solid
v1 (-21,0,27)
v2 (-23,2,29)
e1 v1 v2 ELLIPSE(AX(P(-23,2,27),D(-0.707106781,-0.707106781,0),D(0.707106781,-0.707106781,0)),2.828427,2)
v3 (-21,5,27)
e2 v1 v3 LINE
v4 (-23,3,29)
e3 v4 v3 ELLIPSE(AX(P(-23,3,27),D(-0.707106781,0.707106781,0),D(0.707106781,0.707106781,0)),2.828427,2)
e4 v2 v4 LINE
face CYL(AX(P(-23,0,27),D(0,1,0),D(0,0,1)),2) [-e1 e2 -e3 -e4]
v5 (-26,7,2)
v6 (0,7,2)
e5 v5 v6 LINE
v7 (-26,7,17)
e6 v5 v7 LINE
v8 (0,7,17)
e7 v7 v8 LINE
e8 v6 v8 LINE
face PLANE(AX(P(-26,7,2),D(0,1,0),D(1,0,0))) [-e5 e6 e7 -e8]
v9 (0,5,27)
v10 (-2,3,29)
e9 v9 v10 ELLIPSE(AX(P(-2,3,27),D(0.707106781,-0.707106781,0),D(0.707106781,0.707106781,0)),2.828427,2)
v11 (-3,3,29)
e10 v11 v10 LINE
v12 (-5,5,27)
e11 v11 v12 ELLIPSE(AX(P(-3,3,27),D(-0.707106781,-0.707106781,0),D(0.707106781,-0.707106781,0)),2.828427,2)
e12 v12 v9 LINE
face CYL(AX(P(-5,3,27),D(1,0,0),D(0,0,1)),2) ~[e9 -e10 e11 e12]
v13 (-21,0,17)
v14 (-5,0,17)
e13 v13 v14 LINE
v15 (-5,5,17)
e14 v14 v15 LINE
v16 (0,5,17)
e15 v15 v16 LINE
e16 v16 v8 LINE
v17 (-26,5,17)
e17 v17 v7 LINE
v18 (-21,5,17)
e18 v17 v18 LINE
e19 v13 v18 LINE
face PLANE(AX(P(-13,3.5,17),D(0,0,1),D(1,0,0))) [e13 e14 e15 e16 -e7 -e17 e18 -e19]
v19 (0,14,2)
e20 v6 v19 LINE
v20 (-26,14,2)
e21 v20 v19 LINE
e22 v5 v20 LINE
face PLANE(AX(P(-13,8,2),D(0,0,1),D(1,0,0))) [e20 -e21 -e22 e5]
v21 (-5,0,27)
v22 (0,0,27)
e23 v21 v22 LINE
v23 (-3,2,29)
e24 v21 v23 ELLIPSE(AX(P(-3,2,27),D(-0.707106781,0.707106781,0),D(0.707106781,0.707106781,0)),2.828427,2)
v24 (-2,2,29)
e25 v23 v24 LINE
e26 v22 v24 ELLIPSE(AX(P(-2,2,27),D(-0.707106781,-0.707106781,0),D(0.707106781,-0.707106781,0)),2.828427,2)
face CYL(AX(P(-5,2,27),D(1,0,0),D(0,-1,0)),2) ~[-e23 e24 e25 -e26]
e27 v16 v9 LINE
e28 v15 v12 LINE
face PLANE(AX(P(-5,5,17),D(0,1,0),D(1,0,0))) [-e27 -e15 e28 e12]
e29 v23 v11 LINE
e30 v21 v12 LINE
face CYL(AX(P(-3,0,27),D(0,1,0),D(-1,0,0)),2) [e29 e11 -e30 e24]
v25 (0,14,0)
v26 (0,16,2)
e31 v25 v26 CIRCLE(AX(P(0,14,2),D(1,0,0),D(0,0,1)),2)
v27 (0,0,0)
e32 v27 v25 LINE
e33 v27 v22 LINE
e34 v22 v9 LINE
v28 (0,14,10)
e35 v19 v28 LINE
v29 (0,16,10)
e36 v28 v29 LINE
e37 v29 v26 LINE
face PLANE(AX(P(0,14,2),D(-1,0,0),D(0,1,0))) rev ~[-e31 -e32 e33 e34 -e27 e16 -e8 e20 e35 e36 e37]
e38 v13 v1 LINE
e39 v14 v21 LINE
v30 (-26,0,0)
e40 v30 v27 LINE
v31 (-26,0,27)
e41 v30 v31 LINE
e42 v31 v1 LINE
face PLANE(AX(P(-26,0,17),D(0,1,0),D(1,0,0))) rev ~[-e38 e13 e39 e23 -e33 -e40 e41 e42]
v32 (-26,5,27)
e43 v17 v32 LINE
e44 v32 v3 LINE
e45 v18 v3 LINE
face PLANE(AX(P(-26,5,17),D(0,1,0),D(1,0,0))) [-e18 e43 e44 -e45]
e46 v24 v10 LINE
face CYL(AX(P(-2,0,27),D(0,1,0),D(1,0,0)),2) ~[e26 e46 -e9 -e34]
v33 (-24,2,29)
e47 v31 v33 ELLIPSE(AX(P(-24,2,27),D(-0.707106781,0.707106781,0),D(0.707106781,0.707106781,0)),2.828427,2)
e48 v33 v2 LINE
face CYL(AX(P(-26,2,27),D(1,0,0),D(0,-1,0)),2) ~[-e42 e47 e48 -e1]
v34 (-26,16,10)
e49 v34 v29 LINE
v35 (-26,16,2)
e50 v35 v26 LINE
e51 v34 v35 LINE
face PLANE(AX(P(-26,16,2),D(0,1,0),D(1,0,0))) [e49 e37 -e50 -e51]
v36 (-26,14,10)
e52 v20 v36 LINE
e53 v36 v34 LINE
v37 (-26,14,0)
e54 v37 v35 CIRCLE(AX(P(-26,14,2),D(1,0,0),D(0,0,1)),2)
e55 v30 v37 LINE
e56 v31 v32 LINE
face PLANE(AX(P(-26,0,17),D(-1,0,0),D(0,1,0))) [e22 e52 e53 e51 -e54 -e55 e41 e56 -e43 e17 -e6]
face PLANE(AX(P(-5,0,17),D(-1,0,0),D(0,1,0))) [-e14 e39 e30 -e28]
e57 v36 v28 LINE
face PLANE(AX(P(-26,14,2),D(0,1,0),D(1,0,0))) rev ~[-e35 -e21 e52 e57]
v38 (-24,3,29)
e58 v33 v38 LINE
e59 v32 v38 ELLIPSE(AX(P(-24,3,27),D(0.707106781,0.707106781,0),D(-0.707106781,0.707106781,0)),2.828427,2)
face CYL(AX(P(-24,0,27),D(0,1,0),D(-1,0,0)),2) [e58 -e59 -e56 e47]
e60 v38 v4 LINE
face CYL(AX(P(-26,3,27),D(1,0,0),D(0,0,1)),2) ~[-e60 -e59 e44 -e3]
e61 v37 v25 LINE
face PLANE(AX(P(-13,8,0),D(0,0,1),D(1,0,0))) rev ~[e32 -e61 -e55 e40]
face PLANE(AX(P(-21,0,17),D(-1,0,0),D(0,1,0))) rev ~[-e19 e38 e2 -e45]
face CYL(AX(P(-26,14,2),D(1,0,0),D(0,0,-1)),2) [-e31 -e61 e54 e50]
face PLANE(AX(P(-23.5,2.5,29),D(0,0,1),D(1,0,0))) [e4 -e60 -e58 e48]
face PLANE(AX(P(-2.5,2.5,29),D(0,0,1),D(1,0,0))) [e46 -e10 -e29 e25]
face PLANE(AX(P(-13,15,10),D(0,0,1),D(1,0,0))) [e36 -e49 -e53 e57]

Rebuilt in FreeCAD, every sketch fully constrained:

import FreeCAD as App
import Part
import Sketcher

V = App.Vector
Q = App.Units.Quantity


def edges_at(feature, points):
    """Names of the edges that pass closest to the given points."""
    edges = feature.Shape.Edges
    near = lambda p: min(range(len(edges)), key=lambda i: edges[i].distToShape(Part.Vertex(*p))[0])
    return sorted({f"Edge{near(p) + 1}" for p in points})

doc = App.newDocument("Part")
params = doc.addObject("Spreadsheet::Sheet", "Params")
for row, (alias, value) in enumerate([
    ("sketch1_width", "26 mm"),
    ("sketch1_height", "16 mm"),
    ("pad1_length", "2 mm"),
    ("sketch2_width", "26 mm"),
    ("sketch2_height", "7 mm"),
    ("pad2_length", "15 mm"),
    ("sketch3_width", "26 mm"),
    ("sketch3_height", "2 mm"),
    ("pad3_length", "8 mm"),
    ("sketch4_width", "5 mm"),
    ("pad4_length", "12 mm"),
    ("fillet_radius", "2 mm"),
    ("fillet2_radius", "2 mm"),
], start=1):
    params.set(f"A{row}", alias)
    params.set(f"B{row}", "=" + value)
    params.setAlias(f"B{row}", alias)

body = doc.addObject("PartDesign::Body", "Body")

sketch1 = body.newObject("Sketcher::SketchObject", "Sketch")
sketch1.AttachmentSupport = (doc.getObject("XY_Plane"), [""])
sketch1.MapMode = "FlatFace"
sketch1.addGeometry([
    Part.LineSegment(V(-26, 16, 0), V(-26, 0, 0)),
    Part.LineSegment(V(-26, 0, 0), V(0, 0, 0)),
    Part.LineSegment(V(0, 0, 0), V(0, 16, 0)),
    Part.LineSegment(V(0, 16, 0), V(-26, 16, 0)),
], False)
sketch1.addConstraint([
    Sketcher.Constraint("Coincident", 0, 2, 1, 1),
    Sketcher.Constraint("Coincident", 1, 2, 2, 1),
    Sketcher.Constraint("Coincident", 2, 2, 3, 1),
    Sketcher.Constraint("Coincident", 3, 2, 0, 1),
    Sketcher.Constraint("Vertical", 0),
    Sketcher.Constraint("Horizontal", 1),
    Sketcher.Constraint("Vertical", 2),
    Sketcher.Constraint("Horizontal", 3),
    Sketcher.Constraint("Coincident", 1, 2, -1, 1),
    Sketcher.Constraint("DistanceX", 1, 1, 1, 2, Q("26 mm")),
    Sketcher.Constraint("DistanceY", 0, 2, 0, 1, Q("16 mm")),
])
sketch1.setExpression("Constraints[9]", "Params.sketch1_width")
sketch1.setExpression("Constraints[10]", "Params.sketch1_height")
pad1 = body.newObject("PartDesign::Pad", "Pad")
pad1.Profile = sketch1
pad1.setExpression("Length", "Params.pad1_length")

sketch2 = body.newObject("Sketcher::SketchObject", "Sketch001")
sketch2.AttachmentSupport = (doc.getObject("XY_Plane"), [""])
sketch2.MapMode = "FlatFace"
sketch2.AttachmentOffset = App.Placement(V(0, 0, 2), App.Rotation())
sketch2.addGeometry([
    Part.LineSegment(V(-26, 7, 0), V(-26, 0, 0)),
    Part.LineSegment(V(-26, 0, 0), V(0, 0, 0)),
    Part.LineSegment(V(0, 0, 0), V(0, 7, 0)),
    Part.LineSegment(V(0, 7, 0), V(-26, 7, 0)),
], False)
sketch2.addConstraint([
    Sketcher.Constraint("Coincident", 0, 2, 1, 1),
    Sketcher.Constraint("Coincident", 1, 2, 2, 1),
    Sketcher.Constraint("Coincident", 2, 2, 3, 1),
    Sketcher.Constraint("Coincident", 3, 2, 0, 1),
    Sketcher.Constraint("Vertical", 0),
    Sketcher.Constraint("Horizontal", 1),
    Sketcher.Constraint("Vertical", 2),
    Sketcher.Constraint("Horizontal", 3),
    Sketcher.Constraint("Coincident", 1, 2, -1, 1),
    Sketcher.Constraint("DistanceX", 1, 1, 1, 2, Q("26 mm")),
    Sketcher.Constraint("DistanceY", 0, 2, 0, 1, Q("7 mm")),
])
sketch2.setExpression("Constraints[9]", "Params.sketch2_width")
sketch2.setExpression("Constraints[10]", "Params.sketch2_height")
pad2 = body.newObject("PartDesign::Pad", "Pad001")
pad2.Profile = sketch2
pad2.setExpression("Length", "Params.pad2_length")

sketch3 = body.newObject("Sketcher::SketchObject", "Sketch002")
sketch3.AttachmentSupport = (doc.getObject("XY_Plane"), [""])
sketch3.MapMode = "FlatFace"
sketch3.AttachmentOffset = App.Placement(V(0, 0, 2), App.Rotation())
sketch3.addGeometry([
    Part.LineSegment(V(-26, 16, 0), V(-26, 14, 0)),
    Part.LineSegment(V(-26, 14, 0), V(0, 14, 0)),
    Part.LineSegment(V(0, 14, 0), V(0, 16, 0)),
    Part.LineSegment(V(0, 16, 0), V(-26, 16, 0)),
], False)
sketch3.addConstraint([
    Sketcher.Constraint("Coincident", 0, 2, 1, 1),
    Sketcher.Constraint("Coincident", 1, 2, 2, 1),
    Sketcher.Constraint("Coincident", 2, 2, 3, 1),
    Sketcher.Constraint("Coincident", 3, 2, 0, 1),
    Sketcher.Constraint("Vertical", 0),
    Sketcher.Constraint("Horizontal", 1),
    Sketcher.Constraint("Vertical", 2),
    Sketcher.Constraint("Horizontal", 3),
    Sketcher.Constraint("PointOnObject", 1, 2, -2),
    Sketcher.Constraint("DistanceX", 1, 1, 1, 2, Q("26 mm")),
    Sketcher.Constraint("DistanceY", 0, 2, 0, 1, Q("2 mm")),
    Sketcher.Constraint("DistanceY", -1, 1, 0, 2, Q("14 mm")),
])
sketch3.setExpression("Constraints[9]", "Params.sketch3_width")
sketch3.setExpression("Constraints[10]", "Params.sketch3_height")
pad3 = body.newObject("PartDesign::Pad", "Pad002")
pad3.Profile = sketch3
pad3.setExpression("Length", "Params.pad3_length")

sketch4 = body.newObject("Sketcher::SketchObject", "Sketch003")
sketch4.AttachmentSupport = (doc.getObject("XY_Plane"), [""])
sketch4.MapMode = "FlatFace"
sketch4.AttachmentOffset = App.Placement(V(0, 0, 17), App.Rotation())
sketch4.addGeometry([
    Part.LineSegment(V(-26, 5, 0), V(-26, 0, 0)),
    Part.LineSegment(V(-26, 0, 0), V(-21, 0, 0)),
    Part.LineSegment(V(-21, 0, 0), V(-21, 5, 0)),
    Part.LineSegment(V(-21, 5, 0), V(-26, 5, 0)),
    Part.LineSegment(V(-5, 5, 0), V(-5, 0, 0)),
    Part.LineSegment(V(-5, 0, 0), V(0, 0, 0)),
    Part.LineSegment(V(0, 0, 0), V(0, 5, 0)),
    Part.LineSegment(V(0, 5, 0), V(-5, 5, 0)),
], False)
sketch4.addConstraint([
    Sketcher.Constraint("Coincident", 0, 2, 1, 1),
    Sketcher.Constraint("Coincident", 1, 2, 2, 1),
    Sketcher.Constraint("Coincident", 2, 2, 3, 1),
    Sketcher.Constraint("Coincident", 3, 2, 0, 1),
    Sketcher.Constraint("Coincident", 4, 2, 5, 1),
    Sketcher.Constraint("Coincident", 5, 2, 6, 1),
    Sketcher.Constraint("Coincident", 6, 2, 7, 1),
    Sketcher.Constraint("Coincident", 7, 2, 4, 1),
    Sketcher.Constraint("Vertical", 0),
    Sketcher.Constraint("Horizontal", 1),
    Sketcher.Constraint("Vertical", 2),
    Sketcher.Constraint("Horizontal", 3),
    Sketcher.Constraint("Vertical", 4),
    Sketcher.Constraint("Horizontal", 5),
    Sketcher.Constraint("Vertical", 6),
    Sketcher.Constraint("Horizontal", 7),
    Sketcher.Constraint("Coincident", 5, 2, -1, 1),
    Sketcher.Constraint("PointOnObject", 0, 2, -1),
    Sketcher.Constraint("Horizontal", 3, 2, 6, 2),
    Sketcher.Constraint("Equal", 3, 5),
    Sketcher.Constraint("Equal", 7, 0),
    Sketcher.Constraint("DistanceX", 1, 1, 1, 2, Q("5 mm")),
    Sketcher.Constraint("DistanceX", 0, 2, -1, 1, Q("26 mm")),
])
sketch4.setExpression("Constraints[21]", "Params.sketch4_width")
pad4 = body.newObject("PartDesign::Pad", "Pad003")
pad4.Profile = sketch4
pad4.setExpression("Length", "Params.pad4_length")
doc.recompute()

fillet = body.newObject("PartDesign::Fillet", "Fillet")
fillet.Base = (pad4, edges_at(pad4, [(-13, 16, 0)]))
fillet.setExpression("Radius", "Params.fillet_radius")
doc.recompute()

fillet2 = body.newObject("PartDesign::Fillet", "Fillet001")
fillet2.Base = (fillet, edges_at(fillet, [
    (-26, 2.5, 29),
    (-23.5, 0, 29),
    (-21, 2.5, 29),
    (-23.5, 5, 29),
    (-2.5, 0, 29),
    (0, 2.5, 29),
    (-2.5, 5, 29),
    (-5, 2.5, 29),
]))
fillet2.setExpression("Radius", "Params.fillet2_radius")

doc.recompute()
